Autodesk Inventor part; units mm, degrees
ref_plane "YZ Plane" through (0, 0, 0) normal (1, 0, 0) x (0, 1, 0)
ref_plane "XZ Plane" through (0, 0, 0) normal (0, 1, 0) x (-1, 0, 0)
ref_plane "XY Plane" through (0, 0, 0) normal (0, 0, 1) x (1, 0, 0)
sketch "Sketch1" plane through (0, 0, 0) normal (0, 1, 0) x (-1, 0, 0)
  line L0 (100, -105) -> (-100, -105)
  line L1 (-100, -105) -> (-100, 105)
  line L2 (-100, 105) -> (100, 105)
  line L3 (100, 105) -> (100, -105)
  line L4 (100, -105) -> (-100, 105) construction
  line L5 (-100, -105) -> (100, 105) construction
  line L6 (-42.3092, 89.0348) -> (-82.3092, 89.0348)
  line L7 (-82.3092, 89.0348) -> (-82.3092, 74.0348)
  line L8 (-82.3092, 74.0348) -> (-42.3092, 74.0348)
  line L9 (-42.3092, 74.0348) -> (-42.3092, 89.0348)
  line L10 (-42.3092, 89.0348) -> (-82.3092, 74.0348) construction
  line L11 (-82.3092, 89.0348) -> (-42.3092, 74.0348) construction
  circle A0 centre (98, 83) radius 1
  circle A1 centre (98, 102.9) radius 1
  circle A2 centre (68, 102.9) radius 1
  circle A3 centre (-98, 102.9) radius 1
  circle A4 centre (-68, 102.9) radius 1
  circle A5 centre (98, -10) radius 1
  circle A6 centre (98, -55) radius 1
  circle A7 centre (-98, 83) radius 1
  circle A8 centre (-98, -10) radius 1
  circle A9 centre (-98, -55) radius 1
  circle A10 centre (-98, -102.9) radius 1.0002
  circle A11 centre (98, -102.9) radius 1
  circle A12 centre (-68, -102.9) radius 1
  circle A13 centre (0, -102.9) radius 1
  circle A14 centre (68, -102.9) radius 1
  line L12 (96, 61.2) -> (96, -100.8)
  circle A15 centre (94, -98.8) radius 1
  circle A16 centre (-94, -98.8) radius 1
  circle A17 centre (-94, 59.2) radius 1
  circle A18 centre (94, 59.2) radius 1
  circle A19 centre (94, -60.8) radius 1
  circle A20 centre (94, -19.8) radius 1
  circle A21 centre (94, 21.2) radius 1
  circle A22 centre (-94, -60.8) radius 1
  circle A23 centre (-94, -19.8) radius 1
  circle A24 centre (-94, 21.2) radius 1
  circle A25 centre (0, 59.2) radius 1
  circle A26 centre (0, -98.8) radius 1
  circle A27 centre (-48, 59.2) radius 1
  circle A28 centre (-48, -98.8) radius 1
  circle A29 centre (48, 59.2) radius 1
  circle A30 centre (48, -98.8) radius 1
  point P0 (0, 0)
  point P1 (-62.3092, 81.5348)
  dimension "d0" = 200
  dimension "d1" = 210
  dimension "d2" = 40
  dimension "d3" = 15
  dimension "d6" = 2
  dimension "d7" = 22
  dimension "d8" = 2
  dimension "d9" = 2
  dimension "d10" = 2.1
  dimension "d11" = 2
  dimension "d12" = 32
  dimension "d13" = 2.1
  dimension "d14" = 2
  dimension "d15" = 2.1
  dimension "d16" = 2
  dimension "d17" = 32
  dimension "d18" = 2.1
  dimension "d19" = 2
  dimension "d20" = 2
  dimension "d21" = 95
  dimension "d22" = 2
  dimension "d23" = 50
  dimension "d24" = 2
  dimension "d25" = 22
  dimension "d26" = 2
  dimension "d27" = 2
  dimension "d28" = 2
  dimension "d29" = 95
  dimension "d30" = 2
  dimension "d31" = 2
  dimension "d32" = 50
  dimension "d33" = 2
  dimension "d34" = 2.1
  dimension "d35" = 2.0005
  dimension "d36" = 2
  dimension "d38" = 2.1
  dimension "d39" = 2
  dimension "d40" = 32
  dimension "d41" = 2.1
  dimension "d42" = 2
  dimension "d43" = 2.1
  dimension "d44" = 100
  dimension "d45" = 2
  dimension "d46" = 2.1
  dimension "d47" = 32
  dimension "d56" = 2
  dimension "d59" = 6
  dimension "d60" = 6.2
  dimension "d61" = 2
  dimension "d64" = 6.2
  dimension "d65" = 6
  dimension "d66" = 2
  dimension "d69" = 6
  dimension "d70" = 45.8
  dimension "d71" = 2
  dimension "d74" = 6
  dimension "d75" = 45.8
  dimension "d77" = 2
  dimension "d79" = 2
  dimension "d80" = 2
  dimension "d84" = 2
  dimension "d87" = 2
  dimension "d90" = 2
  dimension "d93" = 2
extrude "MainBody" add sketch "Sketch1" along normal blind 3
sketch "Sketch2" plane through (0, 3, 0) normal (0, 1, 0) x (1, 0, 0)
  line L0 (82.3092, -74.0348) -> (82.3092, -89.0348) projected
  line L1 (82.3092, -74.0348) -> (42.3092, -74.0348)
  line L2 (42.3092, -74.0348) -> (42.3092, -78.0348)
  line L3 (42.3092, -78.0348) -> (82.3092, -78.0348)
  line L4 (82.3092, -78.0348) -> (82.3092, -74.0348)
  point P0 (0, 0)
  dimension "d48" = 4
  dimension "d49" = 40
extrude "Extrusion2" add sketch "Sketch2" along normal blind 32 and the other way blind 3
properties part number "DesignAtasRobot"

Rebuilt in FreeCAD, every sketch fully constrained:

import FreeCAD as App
import Part
import Sketcher

V = App.Vector
Q = App.Units.Quantity

doc = App.newDocument("Part")
body = doc.addObject("PartDesign::Body", "Body")

# Sketch on XZ plane
sketch1 = body.newObject("Sketcher::SketchObject", "Sketch")
sketch1.AttachmentSupport = (doc.getObject("XZ_Plane"), [""])
sketch1.MapMode = "FlatFace"
sketch1.addGeometry(Part.LineSegment(V(100, -105, 0), V(-100, -105, 0)), False)
sketch1.addGeometry(Part.LineSegment(V(-100, -105, 0), V(-100, 105, 0)), False)
sketch1.addGeometry(Part.LineSegment(V(-100, 105, 0), V(100, 105, 0)), False)
sketch1.addGeometry(Part.LineSegment(V(100, 105, 0), V(100, -105, 0)), False)
sketch1.addGeometry(Part.Circle(V(98, -102.9, 0), V(0, 0, 1), 1), False)
sketch1.addGeometry(Part.Circle(V(94, -98.8, 0), V(0, 0, 1), 1), False)
sketch1.addGeometry(Part.Circle(V(68, -102.9, 0), V(0, 0, 1), 1), False)
sketch1.addGeometry(Part.Circle(V(94, -60.8, 0), V(0, 0, 1), 1), False)
sketch1.addGeometry(Part.Circle(V(98, -55, 0), V(0, 0, 1), 1), False)
sketch1.addGeometry(Part.Circle(V(48, -98.8, 0), V(0, 0, 1), 1), False)
sketch1.addGeometry(Part.Circle(V(94, -19.8, 0), V(0, 0, 1), 1), False)
sketch1.addGeometry(Part.Circle(V(98, -10, 0), V(0, 0, 1), 1), False)
sketch1.addGeometry(Part.Circle(V(0, -102.9, 0), V(0, 0, 1), 1), False)
sketch1.addGeometry(Part.Circle(V(0, -98.8, 0), V(0, 0, 1), 1), False)
sketch1.addGeometry(Part.Circle(V(-48, -98.8, 0), V(0, 0, 1), 1), False)
sketch1.addGeometry(Part.Circle(V(-68, -102.9, 0), V(0, 0, 1), 1), False)
sketch1.addGeometry(Part.Circle(V(-98, -102.9, 0), V(0, 0, 1), 1), False)
sketch1.addGeometry(Part.Circle(V(-94, -98.8, 0), V(0, 0, 1), 1), False)
sketch1.addGeometry(Part.Circle(V(-94, -60.8, 0), V(0, 0, 1), 1), False)
sketch1.addGeometry(Part.Circle(V(-98, -55, 0), V(0, 0, 1), 1), False)
sketch1.addGeometry(Part.Circle(V(-94, -19.8, 0), V(0, 0, 1), 1), False)
sketch1.addGeometry(Part.Circle(V(-98, -10, 0), V(0, 0, 1), 1), False)
sketch1.addGeometry(Part.Circle(V(94, 21.2, 0), V(0, 0, 1), 1), False)
sketch1.addGeometry(Part.Circle(V(94, 59.2, 0), V(0, 0, 1), 1), False)
sketch1.addGeometry(Part.Circle(V(98, 83, 0), V(0, 0, 1), 1), False)
sketch1.addGeometry(Part.Circle(V(98, 102.9, 0), V(0, 0, 1), 1), False)
sketch1.addGeometry(Part.LineSegment(V(82.3, 89, 0), V(42.3, 89, 0)), False)
sketch1.addGeometry(Part.LineSegment(V(42.3, 89, 0), V(42.3, 74, 0)), False)
sketch1.addGeometry(Part.LineSegment(V(42.3, 74, 0), V(82.3, 74, 0)), False)
sketch1.addGeometry(Part.LineSegment(V(82.3, 74, 0), V(82.3, 89, 0)), False)
sketch1.addGeometry(Part.Circle(V(68, 102.9, 0), V(0, 0, 1), 1), False)
sketch1.addGeometry(Part.Circle(V(48, 59.2, 0), V(0, 0, 1), 1), False)
sketch1.addGeometry(Part.Circle(V(-94, 21.2, 0), V(0, 0, 1), 1), False)
sketch1.addGeometry(Part.Circle(V(0, 59.2, 0), V(0, 0, 1), 1), False)
sketch1.addGeometry(Part.Circle(V(-48, 59.2, 0), V(0, 0, 1), 1), False)
sketch1.addGeometry(Part.Circle(V(-94, 59.2, 0), V(0, 0, 1), 1), False)
sketch1.addGeometry(Part.Circle(V(-68, 102.9, 0), V(0, 0, 1), 1), False)
sketch1.addGeometry(Part.Circle(V(-98, 83, 0), V(0, 0, 1), 1), False)
sketch1.addGeometry(Part.Circle(V(-98, 102.9, 0), V(0, 0, 1), 1), False)
sketch1.addConstraint(Sketcher.Constraint("Coincident", 0, 2, 1, 1))
sketch1.addConstraint(Sketcher.Constraint("Coincident", 1, 2, 2, 1))
sketch1.addConstraint(Sketcher.Constraint("Coincident", 2, 2, 3, 1))
sketch1.addConstraint(Sketcher.Constraint("Coincident", 3, 2, 0, 1))
sketch1.addConstraint(Sketcher.Constraint("Coincident", 26, 2, 27, 1))
sketch1.addConstraint(Sketcher.Constraint("Coincident", 27, 2, 28, 1))
sketch1.addConstraint(Sketcher.Constraint("Coincident", 28, 2, 29, 1))
sketch1.addConstraint(Sketcher.Constraint("Coincident", 29, 2, 26, 1))
sketch1.addConstraint(Sketcher.Constraint("Horizontal", 0))
sketch1.addConstraint(Sketcher.Constraint("Vertical", 1))
sketch1.addConstraint(Sketcher.Constraint("Horizontal", 2))
sketch1.addConstraint(Sketcher.Constraint("Vertical", 3))
sketch1.addConstraint(Sketcher.Constraint("Horizontal", 26))
sketch1.addConstraint(Sketcher.Constraint("Vertical", 27))
sketch1.addConstraint(Sketcher.Constraint("Horizontal", 28))
sketch1.addConstraint(Sketcher.Constraint("Vertical", 29))
sketch1.addConstraint(Sketcher.Constraint("Equal", 4, 5))
sketch1.addConstraint(Sketcher.Constraint("Equal", 5, 6))
sketch1.addConstraint(Sketcher.Constraint("Equal", 6, 7))
sketch1.addConstraint(Sketcher.Constraint("Equal", 7, 8))
sketch1.addConstraint(Sketcher.Constraint("Equal", 8, 9))
sketch1.addConstraint(Sketcher.Constraint("Equal", 9, 10))
sketch1.addConstraint(Sketcher.Constraint("Equal", 10, 11))
sketch1.addConstraint(Sketcher.Constraint("Equal", 11, 12))
sketch1.addConstraint(Sketcher.Constraint("Equal", 12, 13))
sketch1.addConstraint(Sketcher.Constraint("Equal", 13, 14))
sketch1.addConstraint(Sketcher.Constraint("Equal", 14, 15))
sketch1.addConstraint(Sketcher.Constraint("Equal", 15, 16))
sketch1.addConstraint(Sketcher.Constraint("Equal", 16, 17))
sketch1.addConstraint(Sketcher.Constraint("Equal", 17, 18))
sketch1.addConstraint(Sketcher.Constraint("Equal", 18, 19))
sketch1.addConstraint(Sketcher.Constraint("Equal", 19, 20))
sketch1.addConstraint(Sketcher.Constraint("Equal", 20, 21))
sketch1.addConstraint(Sketcher.Constraint("Equal", 21, 22))
sketch1.addConstraint(Sketcher.Constraint("Equal", 22, 23))
sketch1.addConstraint(Sketcher.Constraint("Equal", 23, 24))
sketch1.addConstraint(Sketcher.Constraint("Equal", 24, 25))
sketch1.addConstraint(Sketcher.Constraint("Equal", 25, 30))
sketch1.addConstraint(Sketcher.Constraint("Equal", 30, 31))
sketch1.addConstraint(Sketcher.Constraint("Equal", 31, 32))
sketch1.addConstraint(Sketcher.Constraint("Equal", 32, 33))
sketch1.addConstraint(Sketcher.Constraint("Equal", 33, 34))
sketch1.addConstraint(Sketcher.Constraint("Equal", 34, 35))
sketch1.addConstraint(Sketcher.Constraint("Equal", 35, 36))
sketch1.addConstraint(Sketcher.Constraint("Equal", 36, 37))
sketch1.addConstraint(Sketcher.Constraint("Equal", 37, 38))
sketch1.addConstraint(Sketcher.Constraint("Symmetric", 16, 3, 25, 3, -1, 1))
sketch1.addConstraint(Sketcher.Constraint("Symmetric", 15, 3, 30, 3, -1, 1))
sketch1.addConstraint(Sketcher.Constraint("Symmetric", 6, 3, 36, 3, -1, 1))
sketch1.addConstraint(Sketcher.Constraint("Symmetric", 4, 3, 38, 3, -1, 1))
sketch1.addConstraint(Sketcher.Constraint("Symmetric", 0, 2, 2, 2, -1, 1))
sketch1.addConstraint(Sketcher.Constraint("Symmetric", 9, 3, 14, 3, -2))
sketch1.addConstraint(Sketcher.Constraint("Symmetric", 6, 3, 15, 3, -2))
sketch1.addConstraint(Sketcher.Constraint("Symmetric", 4, 3, 16, 3, -2))
sketch1.addConstraint(Sketcher.Constraint("Symmetric", 5, 3, 17, 3, -2))
sketch1.addConstraint(Sketcher.Constraint("Symmetric", 7, 3, 18, 3, -2))
sketch1.addConstraint(Sketcher.Constraint("Symmetric", 8, 3, 19, 3, -2))
sketch1.addConstraint(Sketcher.Constraint("Symmetric", 10, 3, 20, 3, -2))
sketch1.addConstraint(Sketcher.Constraint("Symmetric", 11, 3, 21, 3, -2))
sketch1.addConstraint(Sketcher.Constraint("Symmetric", 22, 3, 32, 3, -2))
sketch1.addConstraint(Sketcher.Constraint("Symmetric", 31, 3, 34, 3, -2))
sketch1.addConstraint(Sketcher.Constraint("Symmetric", 23, 3, 35, 3, -2))
sketch1.addConstraint(Sketcher.Constraint("Symmetric", 24, 3, 37, 3, -2))
sketch1.addConstraint(Sketcher.Constraint("PointOnObject", 12, 3, -2))
sketch1.addConstraint(Sketcher.Constraint("PointOnObject", 13, 3, -2))
sketch1.addConstraint(Sketcher.Constraint("PointOnObject", 33, 3, -2))
sketch1.addConstraint(Sketcher.Constraint("Horizontal", 4, 3, 6, 3))
sketch1.addConstraint(Sketcher.Constraint("Horizontal", 5, 3, 9, 3))
sketch1.addConstraint(Sketcher.Constraint("Horizontal", 6, 3, 12, 3))
sketch1.addConstraint(Sketcher.Constraint("Horizontal", 9, 3, 13, 3))
sketch1.addConstraint(Sketcher.Constraint("Horizontal", 23, 3, 31, 3))
sketch1.addConstraint(Sketcher.Constraint("Horizontal", 31, 3, 33, 3))
sketch1.addConstraint(Sketcher.Constraint("Vertical", 5, 3, 7, 3))
sketch1.addConstraint(Sketcher.Constraint("Vertical", 4, 3, 8, 3))
sketch1.addConstraint(Sketcher.Constraint("Vertical", 7, 3, 10, 3))
sketch1.addConstraint(Sketcher.Constraint("Vertical", 8, 3, 11, 3))
sketch1.addConstraint(Sketcher.Constraint("Vertical", 10, 3, 22, 3))
sketch1.addConstraint(Sketcher.Constraint("Vertical", 22, 3, 23, 3))
sketch1.addConstraint(Sketcher.Constraint("Vertical", 11, 3, 24, 3))
sketch1.addConstraint(Sketcher.Constraint("Vertical", 9, 3, 31, 3))
sketch1.addConstraint(Sketcher.Constraint("Diameter", 5, Q("2 mm")))
sketch1.addConstraint(Sketcher.Constraint("DistanceX", 0, 2, 0, 1, Q("200 mm")))
sketch1.addConstraint(Sketcher.Constraint("DistanceX", 26, 2, 26, 1, Q("40 mm")))
sketch1.addConstraint(Sketcher.Constraint("DistanceY", 1, 1, 1, 2, Q("210 mm")))
sketch1.addConstraint(Sketcher.Constraint("DistanceY", 27, 2, 27, 1, Q("15 mm")))
sketch1.addConstraint(Sketcher.Constraint("DistanceX", 9, 3, 4, 3, Q("50 mm")))
sketch1.addConstraint(Sketcher.Constraint("DistanceX", 0, 2, 16, 3, Q("2 mm")))
sketch1.addConstraint(Sketcher.Constraint("DistanceX", 0, 2, 17, 3, Q("6 mm")))
sketch1.addConstraint(Sketcher.Constraint("DistanceX", 0, 2, 15, 3, Q("32 mm")))
sketch1.addConstraint(Sketcher.Constraint("DistanceY", 0, 2, 19, 3, Q("50 mm")))
sketch1.addConstraint(Sketcher.Constraint("DistanceY", 37, 3, 1, 2, Q("22 mm")))
sketch1.addConstraint(Sketcher.Constraint("DistanceY", 0, 2, 16, 3, Q("2.1 mm")))
sketch1.addConstraint(Sketcher.Constraint("DistanceY", 0, 2, 17, 3, Q("6.2 mm")))
sketch1.addConstraint(Sketcher.Constraint("DistanceY", 35, 3, 1, 2, Q("45.8 mm")))
sketch1.addConstraint(Sketcher.Constraint("DistanceY", 11, 3, -1, 1, Q("10 mm")))
sketch1.addConstraint(Sketcher.Constraint("DistanceY", 5, 3, 7, 3, Q("38 mm")))
sketch1.addConstraint(Sketcher.Constraint("DistanceY", 7, 3, 10, 3, Q("41 mm")))
sketch1.addConstraint(Sketcher.Constraint("DistanceY", 10, 3, 22, 3, Q("41 mm")))
sketch1.addConstraint(Sketcher.Constraint("DistanceX", -1, 1, 26, 2, Q("42.3092 mm")))
sketch1.addConstraint(Sketcher.Constraint("DistanceY", -1, 1, 26, 2, Q("89.0348 mm")))
pad1 = body.newObject("PartDesign::Pad", "Pad")
pad1.Profile = sketch1
pad1.Length = 3
pad1.Reversed = True

# Sketch on XZ plane
sketch2 = body.newObject("Sketcher::SketchObject", "Sketch001")
sketch2.AttachmentSupport = (doc.getObject("XZ_Plane"), [""])
sketch2.MapMode = "FlatFace"
sketch2.AttachmentOffset = App.Placement(V(0, 0, -3), App.Rotation())
sketch2.addGeometry(Part.LineSegment(V(82.3, 78, 0), V(82.3, 74, 0)), False)
sketch2.addGeometry(Part.LineSegment(V(82.3, 74, 0), V(42.3, 74, 0)), False)
sketch2.addGeometry(Part.LineSegment(V(42.3, 74, 0), V(42.3, 78, 0)), False)
sketch2.addGeometry(Part.LineSegment(V(42.3, 78, 0), V(82.3, 78, 0)), False)
sketch2.addConstraint(Sketcher.Constraint("Coincident", 0, 2, 1, 1))
sketch2.addConstraint(Sketcher.Constraint("Coincident", 1, 2, 2, 1))
sketch2.addConstraint(Sketcher.Constraint("Coincident", 2, 2, 3, 1))
sketch2.addConstraint(Sketcher.Constraint("Coincident", 3, 2, 0, 1))
sketch2.addConstraint(Sketcher.Constraint("Vertical", 0))
sketch2.addConstraint(Sketcher.Constraint("Horizontal", 1))
sketch2.addConstraint(Sketcher.Constraint("Vertical", 2))
sketch2.addConstraint(Sketcher.Constraint("Horizontal", 3))
sketch2.addConstraint(Sketcher.Constraint("DistanceX", 1, 2, 1, 1, Q("40 mm")))
sketch2.addConstraint(Sketcher.Constraint("DistanceY", 0, 2, 0, 1, Q("4 mm")))
sketch2.addConstraint(Sketcher.Constraint("DistanceX", -1, 1, 0, 2, Q("82.3092 mm")))
sketch2.addConstraint(Sketcher.Constraint("DistanceY", -1, 1, 0, 2, Q("74.0348 mm")))
pad2 = body.newObject("PartDesign::Pad", "Pad001")
pad2.Profile = sketch2
pad2.Type = "TwoLengths"
pad2.Length = 32
pad2.Length2 = 3
pad2.Reversed = True

doc.recompute()
